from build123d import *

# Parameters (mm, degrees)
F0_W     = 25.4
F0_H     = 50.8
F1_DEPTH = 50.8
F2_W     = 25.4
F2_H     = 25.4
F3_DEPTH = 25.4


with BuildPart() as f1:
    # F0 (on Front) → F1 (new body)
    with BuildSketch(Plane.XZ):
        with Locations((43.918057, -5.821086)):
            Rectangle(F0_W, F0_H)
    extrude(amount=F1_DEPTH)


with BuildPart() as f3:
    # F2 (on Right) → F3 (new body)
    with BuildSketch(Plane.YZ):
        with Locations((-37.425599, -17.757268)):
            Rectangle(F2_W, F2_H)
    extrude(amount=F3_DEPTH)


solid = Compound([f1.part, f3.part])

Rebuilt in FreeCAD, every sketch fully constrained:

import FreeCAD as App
import Part
import Sketcher
Q = App.Units.Quantity

doc = App.newDocument("Part")
body = doc.addObject("PartDesign::Body", "Body")

sketch1 = body.newObject("Sketcher::SketchObject", "Sketch")
sketch1.AttachmentSupport = (doc.getObject("XZ_Plane"), [""])
sketch1.MapMode = "FlatFace"
sketch1.addGeometry(Part.LineSegment(App.Vector(31, 20, 0), App.Vector(31, -31, 0)), False)
sketch1.addGeometry(Part.LineSegment(App.Vector(31, -31, 0), App.Vector(57, -31, 0)), False)
sketch1.addGeometry(Part.LineSegment(App.Vector(57, -31, 0), App.Vector(57, 20, 0)), False)
sketch1.addGeometry(Part.LineSegment(App.Vector(57, 20, 0), App.Vector(31, 20, 0)), False)
sketch1.addConstraint(Sketcher.Constraint("Coincident", 0, 2, 1, 1))
sketch1.addConstraint(Sketcher.Constraint("Coincident", 1, 2, 2, 1))
sketch1.addConstraint(Sketcher.Constraint("Coincident", 2, 2, 3, 1))
sketch1.addConstraint(Sketcher.Constraint("Coincident", 3, 2, 0, 1))
sketch1.addConstraint(Sketcher.Constraint("Vertical", 0))
sketch1.addConstraint(Sketcher.Constraint("Horizontal", 1))
sketch1.addConstraint(Sketcher.Constraint("Vertical", 2))
sketch1.addConstraint(Sketcher.Constraint("Horizontal", 3))
sketch1.addConstraint(Sketcher.Constraint("DistanceX", 1, 1, 1, 2, Q("1 in")))
sketch1.addConstraint(Sketcher.Constraint("DistanceY", 0, 2, 0, 1, Q("2 in")))
sketch1.addConstraint(Sketcher.Constraint("DistanceX", -1, 1, 0, 2, Q("31.218057 mm")))
sketch1.addConstraint(Sketcher.Constraint("DistanceY", 0, 2, -1, 1, Q("31.221086 mm")))
pad1 = body.newObject("PartDesign::Pad", "Pad")
pad1.Profile = sketch1
pad1.Length = Q("2 in")
body2 = doc.addObject("PartDesign::Body", "Body001")

sketch2 = body2.newObject("Sketcher::SketchObject", "Sketch001")
sketch2.AttachmentSupport = (doc.getObject("YZ_Plane001"), [""])
sketch2.MapMode = "FlatFace"
sketch2.addGeometry(Part.LineSegment(App.Vector(-50, -5, 0), App.Vector(-50, -30, 0)), False)
sketch2.addGeometry(Part.LineSegment(App.Vector(-50, -30, 0), App.Vector(-25, -30, 0)), False)
sketch2.addGeometry(Part.LineSegment(App.Vector(-25, -30, 0), App.Vector(-25, -5, 0)), False)
sketch2.addGeometry(Part.LineSegment(App.Vector(-25, -5, 0), App.Vector(-50, -5, 0)), False)
sketch2.addConstraint(Sketcher.Constraint("Coincident", 0, 2, 1, 1))
sketch2.addConstraint(Sketcher.Constraint("Coincident", 1, 2, 2, 1))
sketch2.addConstraint(Sketcher.Constraint("Coincident", 2, 2, 3, 1))
sketch2.addConstraint(Sketcher.Constraint("Coincident", 3, 2, 0, 1))
sketch2.addConstraint(Sketcher.Constraint("Vertical", 0))
sketch2.addConstraint(Sketcher.Constraint("Horizontal", 1))
sketch2.addConstraint(Sketcher.Constraint("Vertical", 2))
sketch2.addConstraint(Sketcher.Constraint("Horizontal", 3))
sketch2.addConstraint(Sketcher.Constraint("Equal", 3, 0))
sketch2.addConstraint(Sketcher.Constraint("DistanceX", 1, 1, 1, 2, Q("1 in")))
sketch2.addConstraint(Sketcher.Constraint("DistanceX", 0, 2, -1, 1, Q("50.125599 mm")))
sketch2.addConstraint(Sketcher.Constraint("DistanceY", 0, 2, -1, 1, Q("30.457268 mm")))
pad2 = body2.newObject("PartDesign::Pad", "Pad001")
pad2.Profile = sketch2
pad2.Length = Q("1 in")

doc.recompute()
